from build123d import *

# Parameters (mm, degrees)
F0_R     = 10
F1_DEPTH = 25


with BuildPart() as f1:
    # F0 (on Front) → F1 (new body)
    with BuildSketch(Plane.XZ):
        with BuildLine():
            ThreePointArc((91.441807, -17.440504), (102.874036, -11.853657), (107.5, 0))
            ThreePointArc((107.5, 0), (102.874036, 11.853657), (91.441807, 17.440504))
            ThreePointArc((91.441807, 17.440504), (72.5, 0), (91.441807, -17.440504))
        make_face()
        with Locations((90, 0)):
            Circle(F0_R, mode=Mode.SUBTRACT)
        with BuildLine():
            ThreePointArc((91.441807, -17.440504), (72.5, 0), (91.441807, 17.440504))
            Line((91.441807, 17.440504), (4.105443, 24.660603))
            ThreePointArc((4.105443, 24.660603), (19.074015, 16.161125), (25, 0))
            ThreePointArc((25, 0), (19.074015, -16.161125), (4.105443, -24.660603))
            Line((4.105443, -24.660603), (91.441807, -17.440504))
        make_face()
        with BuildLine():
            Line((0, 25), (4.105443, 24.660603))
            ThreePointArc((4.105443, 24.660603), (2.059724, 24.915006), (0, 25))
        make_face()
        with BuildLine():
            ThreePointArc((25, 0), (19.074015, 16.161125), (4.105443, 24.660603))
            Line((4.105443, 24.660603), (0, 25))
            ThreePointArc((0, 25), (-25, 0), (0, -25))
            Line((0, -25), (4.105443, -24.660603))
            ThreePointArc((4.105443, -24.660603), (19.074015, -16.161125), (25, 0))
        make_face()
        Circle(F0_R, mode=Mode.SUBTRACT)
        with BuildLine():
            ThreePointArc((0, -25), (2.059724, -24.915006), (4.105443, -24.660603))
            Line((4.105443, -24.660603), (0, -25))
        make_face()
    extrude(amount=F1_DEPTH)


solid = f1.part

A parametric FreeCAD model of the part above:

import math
import FreeCAD as App
import Part
import Sketcher

V = App.Vector
Q = App.Units.Quantity

doc = App.newDocument("Part")
params = doc.addObject("Spreadsheet::Sheet", "Params")
for row, (alias, value) in enumerate([
    ("sketch1_diameter", "20 mm"),
    ("sketch1_radius", "25 mm"),
    ("sketch1_radius2", "17.5 mm"),
    ("pad1_length", "25 mm"),
], start=1):
    params.set(f"A{row}", alias)
    params.set(f"B{row}", "=" + value)
    params.setAlias(f"B{row}", alias)

body = doc.addObject("PartDesign::Body", "Body")

# Sketch on XZ plane
sketch1 = doc.addObject("Sketcher::SketchObject", "Sketch")
body.addObject(sketch1)
sketch1.AttachmentSupport = (doc.XZ_Plane, [""])
sketch1.MapMode = "FlatFace"
sketch1.addGeometry([
    Part.ArcOfCircle(Part.Circle(V(90, 0.000001, 0), V(0, 0, 1), 17.5), math.radians(-85.274102), math.radians(-0.000002)),  # 0
    Part.ArcOfCircle(Part.Circle(V(90, -0.000001, 0), V(0, 0, 1), 17.5), math.radians(0.000002), math.radians(85.274102)),  # 1
    Part.LineSegment(V(91.441807, 17.440504, 0), V(4.105443, 24.660603, 0)),  # 2
    Part.ArcOfCircle(Part.Circle(V(-0.000007, -0.000084, 0), V(0, 0, 1), 25.000084), math.radians(80.548223), math.radians(89.999985)),  # 3
    Part.ArcOfCircle(Part.Circle(V(0, 0, 0), V(0, 0, 1), 25), math.radians(90), math.radians(270)),  # 4
    Part.ArcOfCircle(Part.Circle(V(-0.000007, 0.000084, 0), V(0, 0, 1), 25.000084), math.radians(-89.999985), math.radians(-80.548223)),  # 5
    Part.LineSegment(V(4.105443, -24.660603, 0), V(91.441807, -17.440504, 0)),  # 6
    Part.Circle(V(0, 0, 0), V(0, 0, 1), 10),  # 7
    Part.Circle(V(90, 0, 0), V(0, 0, 1), 10),  # 8
], False)
sketch1.addConstraint([
    Sketcher.Constraint("Tangent", 0, 2, 1, 1),
    Sketcher.Constraint("Tangent", 1, 2, 2, 1),
    Sketcher.Constraint("Coincident", 2, 2, 3, 1),
    Sketcher.Constraint("Tangent", 3, 2, 4, 1),
    Sketcher.Constraint("Tangent", 4, 2, 5, 1),
    Sketcher.Constraint("Coincident", 5, 2, 6, 1),
    Sketcher.Constraint("Tangent", 6, 2, 0, 1),
    Sketcher.Constraint("Coincident", 4, 3, -1, 1),
    Sketcher.Constraint("Coincident", 7, 3, -1, 1),
    Sketcher.Constraint("Coincident", 8, 3, 0, 3),
    Sketcher.Constraint("Equal", 0, 1),
    Sketcher.Constraint("Equal", 3, 5),
    Sketcher.Constraint("Equal", 7, 8),
    Sketcher.Constraint("Symmetric", 1, 2, 6, 2, -1),
    Sketcher.Constraint("PointOnObject", 0, 2, -1),
    Sketcher.Constraint("PointOnObject", 3, 2, -2),
    Sketcher.Constraint("PointOnObject", 4, 2, -2),
    Sketcher.Constraint("Diameter", 7, Q("20 mm")),
    Sketcher.Constraint("Radius", 4, Q("25 mm")),
    Sketcher.Constraint("Radius", 0, Q("17.5 mm")),
    Sketcher.Constraint("DistanceX", -1, 1, 0, 3, Q("90 mm")),
    Sketcher.Constraint("Radius", 3, Q("25.000084 mm")),
    Sketcher.Constraint("Distance", 2, Q("87.634299 mm")),
])
sketch1.setExpression("Constraints[17]", "Params.sketch1_diameter")
sketch1.setExpression("Constraints[18]", "Params.sketch1_radius")
sketch1.setExpression("Constraints[19]", "Params.sketch1_radius2")
pad1 = doc.addObject("PartDesign::Pad", "Pad")
body.addObject(pad1)
pad1.Profile = sketch1
pad1.setExpression("Length", "Params.pad1_length")

doc.recompute()
